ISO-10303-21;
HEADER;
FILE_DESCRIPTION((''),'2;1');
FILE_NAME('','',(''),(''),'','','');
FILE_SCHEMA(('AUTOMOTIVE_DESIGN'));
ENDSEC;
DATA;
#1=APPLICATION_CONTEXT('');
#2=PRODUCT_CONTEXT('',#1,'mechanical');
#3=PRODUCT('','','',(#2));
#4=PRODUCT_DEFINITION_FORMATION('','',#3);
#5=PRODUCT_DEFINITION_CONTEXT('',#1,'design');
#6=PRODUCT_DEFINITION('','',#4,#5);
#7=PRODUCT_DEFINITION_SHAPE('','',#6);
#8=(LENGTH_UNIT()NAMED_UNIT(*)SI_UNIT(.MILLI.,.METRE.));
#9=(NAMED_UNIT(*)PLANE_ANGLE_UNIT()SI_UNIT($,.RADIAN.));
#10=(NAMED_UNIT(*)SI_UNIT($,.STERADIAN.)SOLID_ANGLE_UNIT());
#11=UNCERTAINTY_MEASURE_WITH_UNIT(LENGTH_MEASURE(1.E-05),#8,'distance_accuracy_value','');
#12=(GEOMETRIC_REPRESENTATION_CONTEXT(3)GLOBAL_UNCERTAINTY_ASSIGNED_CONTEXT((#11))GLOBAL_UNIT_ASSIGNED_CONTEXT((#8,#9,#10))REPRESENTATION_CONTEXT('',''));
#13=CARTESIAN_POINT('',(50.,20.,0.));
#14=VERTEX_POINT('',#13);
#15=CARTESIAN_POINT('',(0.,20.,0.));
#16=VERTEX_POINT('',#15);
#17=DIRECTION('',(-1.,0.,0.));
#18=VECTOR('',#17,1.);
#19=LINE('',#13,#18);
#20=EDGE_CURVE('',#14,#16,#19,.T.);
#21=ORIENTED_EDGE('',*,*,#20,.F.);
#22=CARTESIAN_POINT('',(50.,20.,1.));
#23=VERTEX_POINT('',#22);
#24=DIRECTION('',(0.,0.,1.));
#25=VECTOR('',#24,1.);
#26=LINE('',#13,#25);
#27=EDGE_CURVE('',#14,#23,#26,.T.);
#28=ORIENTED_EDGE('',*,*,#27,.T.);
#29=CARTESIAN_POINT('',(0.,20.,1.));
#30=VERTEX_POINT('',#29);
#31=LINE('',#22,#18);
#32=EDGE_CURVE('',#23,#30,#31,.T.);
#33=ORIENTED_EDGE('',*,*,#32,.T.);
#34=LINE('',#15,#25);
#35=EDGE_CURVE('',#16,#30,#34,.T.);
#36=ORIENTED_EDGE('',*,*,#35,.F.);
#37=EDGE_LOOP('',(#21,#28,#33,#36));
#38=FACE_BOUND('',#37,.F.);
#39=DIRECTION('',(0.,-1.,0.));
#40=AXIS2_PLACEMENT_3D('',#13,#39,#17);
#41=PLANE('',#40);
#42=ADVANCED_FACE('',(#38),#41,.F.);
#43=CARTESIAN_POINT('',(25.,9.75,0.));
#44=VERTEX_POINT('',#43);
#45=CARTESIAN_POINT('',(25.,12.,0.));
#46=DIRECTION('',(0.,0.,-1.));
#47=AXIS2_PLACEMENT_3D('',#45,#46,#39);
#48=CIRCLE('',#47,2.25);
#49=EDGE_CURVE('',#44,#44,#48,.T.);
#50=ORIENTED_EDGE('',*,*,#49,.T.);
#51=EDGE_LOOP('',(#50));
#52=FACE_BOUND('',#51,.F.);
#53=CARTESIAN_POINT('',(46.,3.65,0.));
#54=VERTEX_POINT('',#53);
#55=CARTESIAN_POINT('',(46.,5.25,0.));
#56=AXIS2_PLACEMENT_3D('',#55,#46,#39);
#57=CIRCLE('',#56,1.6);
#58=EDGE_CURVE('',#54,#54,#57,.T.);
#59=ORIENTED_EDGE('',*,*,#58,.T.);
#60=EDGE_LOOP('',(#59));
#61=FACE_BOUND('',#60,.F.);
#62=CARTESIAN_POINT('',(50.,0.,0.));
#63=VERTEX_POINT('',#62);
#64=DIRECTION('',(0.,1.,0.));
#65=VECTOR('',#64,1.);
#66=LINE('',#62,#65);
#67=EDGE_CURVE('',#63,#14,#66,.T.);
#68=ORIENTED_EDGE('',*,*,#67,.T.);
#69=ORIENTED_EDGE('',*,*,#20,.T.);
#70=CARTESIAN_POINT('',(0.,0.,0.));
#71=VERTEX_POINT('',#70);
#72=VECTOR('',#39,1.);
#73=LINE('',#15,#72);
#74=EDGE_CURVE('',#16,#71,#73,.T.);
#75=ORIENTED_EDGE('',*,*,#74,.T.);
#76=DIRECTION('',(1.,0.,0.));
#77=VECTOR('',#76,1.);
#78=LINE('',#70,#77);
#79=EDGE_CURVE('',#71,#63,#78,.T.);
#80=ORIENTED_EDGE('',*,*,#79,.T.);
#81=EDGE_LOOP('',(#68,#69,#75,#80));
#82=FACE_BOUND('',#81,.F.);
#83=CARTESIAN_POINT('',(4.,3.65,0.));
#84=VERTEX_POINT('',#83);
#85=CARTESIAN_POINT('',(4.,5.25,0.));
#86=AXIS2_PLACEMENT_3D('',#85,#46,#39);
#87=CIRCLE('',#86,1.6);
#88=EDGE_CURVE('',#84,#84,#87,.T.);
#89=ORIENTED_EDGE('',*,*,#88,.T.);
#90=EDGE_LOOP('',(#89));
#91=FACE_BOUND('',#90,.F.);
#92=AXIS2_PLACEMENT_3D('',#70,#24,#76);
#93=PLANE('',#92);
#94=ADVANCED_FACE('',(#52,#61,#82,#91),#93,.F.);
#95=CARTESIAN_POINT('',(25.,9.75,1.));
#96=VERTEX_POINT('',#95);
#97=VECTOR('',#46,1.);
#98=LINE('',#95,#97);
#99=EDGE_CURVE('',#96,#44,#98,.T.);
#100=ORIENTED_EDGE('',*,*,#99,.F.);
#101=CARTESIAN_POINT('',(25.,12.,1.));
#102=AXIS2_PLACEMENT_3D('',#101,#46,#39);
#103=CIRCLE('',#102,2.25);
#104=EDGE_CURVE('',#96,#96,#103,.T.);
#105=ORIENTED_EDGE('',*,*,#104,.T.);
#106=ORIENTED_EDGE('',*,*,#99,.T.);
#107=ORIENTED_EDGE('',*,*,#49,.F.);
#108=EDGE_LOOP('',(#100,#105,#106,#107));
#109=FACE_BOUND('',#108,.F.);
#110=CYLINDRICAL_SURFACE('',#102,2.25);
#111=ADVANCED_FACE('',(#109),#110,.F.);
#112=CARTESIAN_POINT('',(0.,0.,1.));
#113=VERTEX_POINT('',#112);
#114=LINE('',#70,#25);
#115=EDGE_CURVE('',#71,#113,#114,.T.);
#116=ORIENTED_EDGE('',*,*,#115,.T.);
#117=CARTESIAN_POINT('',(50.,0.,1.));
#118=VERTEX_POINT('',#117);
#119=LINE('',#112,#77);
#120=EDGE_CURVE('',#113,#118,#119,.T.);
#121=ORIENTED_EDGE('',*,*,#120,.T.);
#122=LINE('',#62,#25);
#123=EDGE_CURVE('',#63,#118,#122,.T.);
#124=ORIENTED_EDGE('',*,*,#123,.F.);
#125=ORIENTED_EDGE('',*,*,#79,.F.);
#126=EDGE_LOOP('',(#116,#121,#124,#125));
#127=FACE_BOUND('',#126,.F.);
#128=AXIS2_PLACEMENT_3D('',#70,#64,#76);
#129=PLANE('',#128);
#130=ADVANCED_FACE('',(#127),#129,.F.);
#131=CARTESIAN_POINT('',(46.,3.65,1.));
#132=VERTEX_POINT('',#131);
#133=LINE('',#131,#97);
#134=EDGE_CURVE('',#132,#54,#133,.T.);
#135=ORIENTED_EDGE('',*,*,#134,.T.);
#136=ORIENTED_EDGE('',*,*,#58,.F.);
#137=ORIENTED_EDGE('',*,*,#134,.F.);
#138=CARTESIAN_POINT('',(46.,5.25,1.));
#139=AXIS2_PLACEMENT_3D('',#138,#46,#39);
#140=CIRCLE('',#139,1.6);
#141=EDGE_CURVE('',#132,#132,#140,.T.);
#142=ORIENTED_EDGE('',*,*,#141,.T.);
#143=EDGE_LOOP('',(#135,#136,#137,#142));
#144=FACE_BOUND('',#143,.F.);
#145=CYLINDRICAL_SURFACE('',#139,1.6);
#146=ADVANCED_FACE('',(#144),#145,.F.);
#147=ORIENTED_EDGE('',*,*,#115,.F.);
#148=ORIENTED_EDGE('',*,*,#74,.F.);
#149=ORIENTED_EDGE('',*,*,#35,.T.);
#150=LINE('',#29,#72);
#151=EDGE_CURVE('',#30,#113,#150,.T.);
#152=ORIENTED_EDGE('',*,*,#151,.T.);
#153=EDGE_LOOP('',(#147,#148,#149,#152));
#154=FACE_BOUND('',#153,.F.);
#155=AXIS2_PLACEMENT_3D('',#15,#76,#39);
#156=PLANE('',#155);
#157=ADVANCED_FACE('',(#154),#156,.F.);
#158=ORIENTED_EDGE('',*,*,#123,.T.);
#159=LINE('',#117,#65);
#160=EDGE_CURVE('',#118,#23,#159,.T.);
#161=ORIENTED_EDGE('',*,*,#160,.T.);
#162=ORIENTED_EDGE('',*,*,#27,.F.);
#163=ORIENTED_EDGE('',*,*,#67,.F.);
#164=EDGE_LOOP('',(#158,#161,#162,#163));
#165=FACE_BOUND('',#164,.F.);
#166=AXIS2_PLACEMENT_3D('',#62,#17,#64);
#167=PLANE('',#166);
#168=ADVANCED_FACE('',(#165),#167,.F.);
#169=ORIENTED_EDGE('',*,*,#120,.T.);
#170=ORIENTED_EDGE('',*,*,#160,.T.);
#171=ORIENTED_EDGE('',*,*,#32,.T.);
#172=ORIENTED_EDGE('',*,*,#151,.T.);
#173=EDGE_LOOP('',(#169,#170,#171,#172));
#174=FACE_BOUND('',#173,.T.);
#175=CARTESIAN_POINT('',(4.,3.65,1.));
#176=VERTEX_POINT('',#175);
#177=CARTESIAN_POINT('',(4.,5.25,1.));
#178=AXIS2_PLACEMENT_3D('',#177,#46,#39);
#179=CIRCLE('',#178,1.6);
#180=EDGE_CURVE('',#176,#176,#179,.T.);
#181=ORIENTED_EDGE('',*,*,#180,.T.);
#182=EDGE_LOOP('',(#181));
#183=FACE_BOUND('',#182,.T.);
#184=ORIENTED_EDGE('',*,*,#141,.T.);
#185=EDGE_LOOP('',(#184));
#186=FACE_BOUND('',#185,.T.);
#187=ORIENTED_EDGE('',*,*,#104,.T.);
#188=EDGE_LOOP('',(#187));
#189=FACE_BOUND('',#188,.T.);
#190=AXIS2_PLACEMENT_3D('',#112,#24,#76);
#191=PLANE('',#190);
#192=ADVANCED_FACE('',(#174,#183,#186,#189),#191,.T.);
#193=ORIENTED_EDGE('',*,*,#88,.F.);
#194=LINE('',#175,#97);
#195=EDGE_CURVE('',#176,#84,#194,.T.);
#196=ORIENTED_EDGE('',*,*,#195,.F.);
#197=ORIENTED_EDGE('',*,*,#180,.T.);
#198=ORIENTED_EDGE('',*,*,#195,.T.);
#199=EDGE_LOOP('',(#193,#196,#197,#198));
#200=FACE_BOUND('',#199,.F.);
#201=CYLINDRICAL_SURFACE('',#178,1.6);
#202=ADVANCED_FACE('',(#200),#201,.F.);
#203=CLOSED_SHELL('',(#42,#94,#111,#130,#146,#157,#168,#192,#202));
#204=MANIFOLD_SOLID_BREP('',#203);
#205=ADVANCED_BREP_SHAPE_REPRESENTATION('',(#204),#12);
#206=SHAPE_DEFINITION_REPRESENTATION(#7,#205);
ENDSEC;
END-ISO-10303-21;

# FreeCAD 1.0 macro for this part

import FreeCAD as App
import Part
import Sketcher
from FreeCAD import Vector


def add_polygon(sketch, points):
    """Adds a closed chain of lines whose ends are joined by coincident constraints."""
    first, n = sketch.GeometryCount, len(points)
    for a, b in zip(points, points[1:] + points[:1]):
        sketch.addGeometry(Part.LineSegment(App.Vector(*a, 0), App.Vector(*b, 0)), False)
    for i in range(n):
        sketch.addConstraint(Sketcher.Constraint("Coincident", first + i, 2, first + (i + 1) % n, 1))

doc = App.newDocument("Part")
body = doc.addObject("PartDesign::Body", "Body")

sketch1 = body.newObject("Sketcher::SketchObject", "Sketch")
sketch1.AttachmentSupport = (doc.getObject("XY_Plane"), [""])
sketch1.MapMode = "FlatFace"
add_polygon(sketch1, [(0, 20), (0, 0), (50, 0), (50, 20)])
sketch1.addConstraint(Sketcher.Constraint("Vertical", 0))
sketch1.addConstraint(Sketcher.Constraint("Horizontal", 1))
sketch1.addConstraint(Sketcher.Constraint("Vertical", 2))
sketch1.addConstraint(Sketcher.Constraint("Horizontal", 3))
sketch1.addConstraint(Sketcher.Constraint("Coincident", 0, 2, -1, 1))
sketch1.addConstraint(Sketcher.Constraint("DistanceX", 1, 1, 1, 2, 50.0))
sketch1.addConstraint(Sketcher.Constraint("DistanceY", 0, 2, 0, 1, 20.0))
pad1 = body.newObject("PartDesign::Pad", "Pad")
pad1.Profile = sketch1
pad1.Length = 1

sketch2 = body.newObject("Sketcher::SketchObject", "Sketch001")
sketch2.AttachmentSupport = (doc.getObject("XY_Plane"), [""])
sketch2.MapMode = "FlatFace"
sketch2.AttachmentOffset = App.Placement(Vector(0, 0, 1), App.Rotation())
sketch2.addGeometry(Part.Circle(Vector(25, 12, 0), Vector(0, 0, 1), 2.25), False)
sketch2.addConstraint(Sketcher.Constraint("Diameter", 0, 4.5))
sketch2.addConstraint(Sketcher.Constraint("DistanceX", -1, 1, 0, 3, 25.0))
sketch2.addConstraint(Sketcher.Constraint("DistanceY", -1, 1, 0, 3, 12.0))
doc.recompute()
hole = body.newObject("PartDesign::Hole", "Hole")
hole.Profile = sketch2
hole.ThreadType = "None"
hole.Diameter = 4.5
hole.DepthType = "ThroughAll"

sketch3 = body.newObject("Sketcher::SketchObject", "Sketch002")
sketch3.AttachmentSupport = (doc.getObject("XY_Plane"), [""])
sketch3.MapMode = "FlatFace"
sketch3.AttachmentOffset = App.Placement(Vector(0, 0, 1), App.Rotation())
sketch3.addGeometry(Part.Circle(Vector(4, 5.25, 0), Vector(0, 0, 1), 1.6), False)
sketch3.addGeometry(Part.Circle(Vector(46, 5.25, 0), Vector(0, 0, 1), 1.6), False)
sketch3.addConstraint(Sketcher.Constraint("Equal", 0, 1))
sketch3.addConstraint(Sketcher.Constraint("Horizontal", 0, 3, 1, 3))
sketch3.addConstraint(Sketcher.Constraint("Diameter", 0, 3.2))
sketch3.addConstraint(Sketcher.Constraint("DistanceX", -1, 1, 0, 3, 4.0))
sketch3.addConstraint(Sketcher.Constraint("DistanceX", -1, 1, 1, 3, 46.0))
sketch3.addConstraint(Sketcher.Constraint("DistanceY", -1, 1, 0, 3, 5.25))
doc.recompute()
hole2 = body.newObject("PartDesign::Hole", "Hole001")
hole2.Profile = sketch3
hole2.ThreadType = "None"
hole2.Diameter = 3.2
hole2.DepthType = "ThroughAll"

doc.recompute()
